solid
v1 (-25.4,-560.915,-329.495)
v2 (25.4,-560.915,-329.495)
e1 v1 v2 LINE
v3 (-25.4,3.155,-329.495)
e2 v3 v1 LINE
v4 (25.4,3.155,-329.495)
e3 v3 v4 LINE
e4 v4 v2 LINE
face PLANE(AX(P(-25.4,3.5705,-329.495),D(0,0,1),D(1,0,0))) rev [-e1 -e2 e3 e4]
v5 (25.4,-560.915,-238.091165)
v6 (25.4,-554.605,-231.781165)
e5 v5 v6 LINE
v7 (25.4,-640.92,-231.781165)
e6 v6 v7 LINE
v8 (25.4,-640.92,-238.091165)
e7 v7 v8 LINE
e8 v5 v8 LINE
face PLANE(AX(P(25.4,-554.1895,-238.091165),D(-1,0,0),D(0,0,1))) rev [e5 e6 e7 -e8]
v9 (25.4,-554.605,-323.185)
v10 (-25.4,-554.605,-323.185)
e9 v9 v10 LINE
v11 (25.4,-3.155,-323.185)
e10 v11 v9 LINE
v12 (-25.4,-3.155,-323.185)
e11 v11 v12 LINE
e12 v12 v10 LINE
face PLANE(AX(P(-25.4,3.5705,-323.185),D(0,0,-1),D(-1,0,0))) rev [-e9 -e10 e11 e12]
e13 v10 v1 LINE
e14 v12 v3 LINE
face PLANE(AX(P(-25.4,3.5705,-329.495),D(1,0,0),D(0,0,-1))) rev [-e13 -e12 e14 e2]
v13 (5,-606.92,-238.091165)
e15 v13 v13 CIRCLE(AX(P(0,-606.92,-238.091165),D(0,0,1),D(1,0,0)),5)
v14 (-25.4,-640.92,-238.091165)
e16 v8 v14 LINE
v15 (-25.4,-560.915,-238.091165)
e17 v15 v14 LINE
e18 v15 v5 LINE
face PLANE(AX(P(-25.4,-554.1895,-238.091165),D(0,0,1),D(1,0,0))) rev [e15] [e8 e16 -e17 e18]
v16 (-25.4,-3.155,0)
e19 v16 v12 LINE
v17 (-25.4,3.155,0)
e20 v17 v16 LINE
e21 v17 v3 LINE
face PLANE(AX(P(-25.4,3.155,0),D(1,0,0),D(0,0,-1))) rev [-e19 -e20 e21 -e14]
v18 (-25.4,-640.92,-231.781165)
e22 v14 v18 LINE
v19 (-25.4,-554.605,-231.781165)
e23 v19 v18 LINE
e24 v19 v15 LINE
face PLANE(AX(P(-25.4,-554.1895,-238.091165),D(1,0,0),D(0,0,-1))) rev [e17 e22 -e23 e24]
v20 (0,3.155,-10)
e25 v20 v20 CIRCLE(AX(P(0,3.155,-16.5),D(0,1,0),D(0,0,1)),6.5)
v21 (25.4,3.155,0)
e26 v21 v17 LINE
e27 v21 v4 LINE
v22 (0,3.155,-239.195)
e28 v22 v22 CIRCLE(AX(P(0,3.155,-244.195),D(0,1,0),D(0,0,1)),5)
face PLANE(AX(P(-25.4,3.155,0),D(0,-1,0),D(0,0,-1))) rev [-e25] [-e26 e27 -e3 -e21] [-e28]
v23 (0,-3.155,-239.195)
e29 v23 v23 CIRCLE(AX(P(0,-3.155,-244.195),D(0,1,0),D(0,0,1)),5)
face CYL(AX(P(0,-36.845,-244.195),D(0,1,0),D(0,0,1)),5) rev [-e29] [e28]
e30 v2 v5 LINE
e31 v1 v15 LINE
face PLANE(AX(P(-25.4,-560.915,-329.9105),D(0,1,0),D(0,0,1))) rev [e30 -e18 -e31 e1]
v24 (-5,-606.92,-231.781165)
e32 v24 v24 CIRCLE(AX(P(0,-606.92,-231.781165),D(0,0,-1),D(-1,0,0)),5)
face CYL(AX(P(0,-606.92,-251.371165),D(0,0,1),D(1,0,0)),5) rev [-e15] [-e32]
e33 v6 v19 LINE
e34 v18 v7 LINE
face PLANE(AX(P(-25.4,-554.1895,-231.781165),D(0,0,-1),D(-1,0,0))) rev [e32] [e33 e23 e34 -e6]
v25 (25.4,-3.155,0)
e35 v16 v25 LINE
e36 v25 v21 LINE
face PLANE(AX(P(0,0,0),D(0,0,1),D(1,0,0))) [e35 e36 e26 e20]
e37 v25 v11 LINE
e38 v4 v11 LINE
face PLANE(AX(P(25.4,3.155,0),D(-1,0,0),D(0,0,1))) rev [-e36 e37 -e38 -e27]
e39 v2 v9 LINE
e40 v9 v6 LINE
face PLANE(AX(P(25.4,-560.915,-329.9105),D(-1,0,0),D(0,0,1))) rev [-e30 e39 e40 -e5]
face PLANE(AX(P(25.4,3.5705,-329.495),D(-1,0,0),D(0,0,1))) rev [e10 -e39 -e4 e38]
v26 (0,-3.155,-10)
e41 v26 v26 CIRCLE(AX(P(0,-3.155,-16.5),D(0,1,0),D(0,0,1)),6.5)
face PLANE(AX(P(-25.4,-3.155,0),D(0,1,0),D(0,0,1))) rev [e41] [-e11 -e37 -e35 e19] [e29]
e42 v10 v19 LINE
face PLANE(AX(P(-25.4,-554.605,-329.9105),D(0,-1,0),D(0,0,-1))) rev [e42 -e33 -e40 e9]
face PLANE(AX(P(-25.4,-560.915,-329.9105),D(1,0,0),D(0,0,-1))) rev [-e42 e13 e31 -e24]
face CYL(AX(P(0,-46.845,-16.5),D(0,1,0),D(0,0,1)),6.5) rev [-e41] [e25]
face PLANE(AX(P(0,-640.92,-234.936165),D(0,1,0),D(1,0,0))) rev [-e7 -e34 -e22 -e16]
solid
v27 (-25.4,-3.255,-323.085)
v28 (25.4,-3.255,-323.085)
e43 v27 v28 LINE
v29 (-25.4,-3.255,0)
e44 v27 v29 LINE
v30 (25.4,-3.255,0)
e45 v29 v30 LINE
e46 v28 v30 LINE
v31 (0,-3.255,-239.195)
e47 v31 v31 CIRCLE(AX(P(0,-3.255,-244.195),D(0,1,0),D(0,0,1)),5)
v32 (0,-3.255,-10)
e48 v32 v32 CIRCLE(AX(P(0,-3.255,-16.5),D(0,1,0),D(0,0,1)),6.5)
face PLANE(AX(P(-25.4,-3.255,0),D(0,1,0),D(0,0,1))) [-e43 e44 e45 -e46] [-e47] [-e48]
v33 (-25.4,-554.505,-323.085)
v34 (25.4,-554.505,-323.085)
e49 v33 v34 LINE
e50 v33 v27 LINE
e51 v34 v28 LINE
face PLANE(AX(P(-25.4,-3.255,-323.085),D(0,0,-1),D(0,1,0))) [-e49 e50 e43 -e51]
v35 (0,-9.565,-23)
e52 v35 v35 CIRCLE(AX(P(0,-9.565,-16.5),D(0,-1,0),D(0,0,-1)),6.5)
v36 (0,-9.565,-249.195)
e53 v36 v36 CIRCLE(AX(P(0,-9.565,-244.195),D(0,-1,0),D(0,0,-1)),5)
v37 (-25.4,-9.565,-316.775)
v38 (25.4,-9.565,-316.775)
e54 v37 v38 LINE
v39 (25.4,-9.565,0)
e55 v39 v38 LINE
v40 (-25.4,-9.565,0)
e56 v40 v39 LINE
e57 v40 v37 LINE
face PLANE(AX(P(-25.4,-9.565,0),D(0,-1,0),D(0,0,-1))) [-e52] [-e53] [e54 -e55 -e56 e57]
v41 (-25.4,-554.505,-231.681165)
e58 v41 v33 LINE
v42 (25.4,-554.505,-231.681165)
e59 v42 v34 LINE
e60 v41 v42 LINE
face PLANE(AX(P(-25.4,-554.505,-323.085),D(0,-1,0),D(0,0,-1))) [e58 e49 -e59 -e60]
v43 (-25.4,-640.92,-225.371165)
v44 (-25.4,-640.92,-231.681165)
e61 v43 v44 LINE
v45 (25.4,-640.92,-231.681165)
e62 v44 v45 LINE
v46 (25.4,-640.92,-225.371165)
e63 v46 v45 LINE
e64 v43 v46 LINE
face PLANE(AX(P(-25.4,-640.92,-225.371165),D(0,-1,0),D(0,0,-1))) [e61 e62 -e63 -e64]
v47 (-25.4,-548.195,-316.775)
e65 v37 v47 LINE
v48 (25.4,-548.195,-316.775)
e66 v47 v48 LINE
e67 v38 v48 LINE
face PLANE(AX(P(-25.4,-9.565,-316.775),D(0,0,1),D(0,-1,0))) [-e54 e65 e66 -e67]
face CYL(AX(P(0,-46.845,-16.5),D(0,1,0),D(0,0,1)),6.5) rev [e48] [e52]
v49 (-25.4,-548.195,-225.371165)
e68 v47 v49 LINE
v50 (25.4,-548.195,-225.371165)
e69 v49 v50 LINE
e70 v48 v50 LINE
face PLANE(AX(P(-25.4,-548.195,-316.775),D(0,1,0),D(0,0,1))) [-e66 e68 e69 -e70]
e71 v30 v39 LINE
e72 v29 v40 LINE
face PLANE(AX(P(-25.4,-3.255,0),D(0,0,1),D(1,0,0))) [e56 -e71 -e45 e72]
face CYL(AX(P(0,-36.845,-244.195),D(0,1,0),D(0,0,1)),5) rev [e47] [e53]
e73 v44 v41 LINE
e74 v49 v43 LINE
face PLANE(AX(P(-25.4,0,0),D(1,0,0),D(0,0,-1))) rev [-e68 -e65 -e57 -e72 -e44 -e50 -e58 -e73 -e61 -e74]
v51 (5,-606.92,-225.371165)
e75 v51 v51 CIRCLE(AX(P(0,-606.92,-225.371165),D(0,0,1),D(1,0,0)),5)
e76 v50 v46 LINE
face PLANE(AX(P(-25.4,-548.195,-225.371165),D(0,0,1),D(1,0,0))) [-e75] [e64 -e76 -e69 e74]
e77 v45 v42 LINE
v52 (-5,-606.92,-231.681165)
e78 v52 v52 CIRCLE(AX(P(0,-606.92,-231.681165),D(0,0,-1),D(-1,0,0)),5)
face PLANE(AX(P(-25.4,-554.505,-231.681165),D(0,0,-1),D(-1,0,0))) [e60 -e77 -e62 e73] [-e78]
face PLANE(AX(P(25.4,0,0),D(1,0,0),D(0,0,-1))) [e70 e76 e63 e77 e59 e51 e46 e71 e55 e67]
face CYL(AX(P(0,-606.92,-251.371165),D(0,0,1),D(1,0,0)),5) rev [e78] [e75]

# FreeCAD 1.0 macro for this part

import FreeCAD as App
import Part
import Sketcher

V = App.Vector


def add_polygon(sketch, points):
    """Adds a closed chain of lines whose ends are joined by coincident constraints."""
    first, n = sketch.GeometryCount, len(points)
    for a, b in zip(points, points[1:] + points[:1]):
        sketch.addGeometry(Part.LineSegment(App.Vector(*a, 0), App.Vector(*b, 0)), False)
    for i in range(n):
        sketch.addConstraint(Sketcher.Constraint("Coincident", first + i, 2, first + (i + 1) % n, 1))

doc = App.newDocument("Part")
body = doc.addObject("PartDesign::Body", "Body")

sketch1 = doc.addObject("Sketcher::SketchObject", "Sketch")
body.addObject(sketch1)
sketch1.AttachmentSupport = (doc.XY_Plane, [""])
sketch1.MapMode = "FlatFace"
add_polygon(sketch1, [(-25.4, 3.155), (-25.4, -3.155), (25.4, -3.155), (25.4, 3.155)])
sketch1.addConstraint([
    Sketcher.Constraint("Vertical", 0),
    Sketcher.Constraint("Horizontal", 1),
    Sketcher.Constraint("Vertical", 2),
    Sketcher.Constraint("Horizontal", 3),
    Sketcher.Constraint("Symmetric", 0, 2, 2, 2, -1, 1),
    Sketcher.Constraint("DistanceX", 1, 1, 1, 2, 50.8),
    Sketcher.Constraint("DistanceY", 0, 2, 0, 1, 6.31),
])

sketch2 = doc.addObject("Sketcher::SketchObject", "Sketch001")
body.addObject(sketch2)
sketch2.AttachmentSupport = (doc.YZ_Plane, [""])
sketch2.MapMode = "FlatFace"
sketch2.addGeometry([
    Part.LineSegment(V(0, 0, 0), V(0, -326.34, 0)),
    Part.LineSegment(V(0, -326.34, 0), V(-557.76, -326.34, 0)),
    Part.LineSegment(V(-557.76, -326.34, 0), V(-557.76, -234.936165, 0)),
    Part.LineSegment(V(-557.76, -234.936165, 0), V(-640.92, -234.936165, 0)),
], False)
sketch2.addConstraint([
    Sketcher.Constraint("Coincident", 0, 2, 1, 1),
    Sketcher.Constraint("Coincident", 1, 2, 2, 1),
    Sketcher.Constraint("Coincident", 2, 2, 3, 1),
    Sketcher.Constraint("Vertical", 0),
    Sketcher.Constraint("Horizontal", 1),
    Sketcher.Constraint("Vertical", 2),
    Sketcher.Constraint("Horizontal", 3),
    Sketcher.Constraint("Coincident", 0, 1, -1, 1),
    Sketcher.Constraint("DistanceX", 1, 2, 1, 1, 557.76),
    Sketcher.Constraint("DistanceX", 3, 2, 3, 1, 83.16),
    Sketcher.Constraint("DistanceY", 0, 2, 0, 1, 326.34),
    Sketcher.Constraint("DistanceY", 2, 1, 2, 2, 91.403835),
])
doc.recompute()

additivepipe = doc.addObject("PartDesign::AdditivePipe", "AdditivePipe")
body.addObject(additivepipe)
additivepipe.Profile = sketch1
additivepipe.Spine = (sketch2, ["Edge1", "Edge2", "Edge3", "Edge4"])
additivepipe.Transition = "Right corner"
body2 = doc.addObject("PartDesign::Body", "Body001")

sketch3 = doc.addObject("Sketcher::SketchObject", "Sketch002")
body2.addObject(sketch3)
sketch3.AttachmentSupport = (doc.getObject("YZ_Plane001"), [""])
sketch3.MapMode = "FlatFace"
sketch3.AttachmentOffset = App.Placement(V(0, 0, 25.4), App.Rotation())
add_polygon(sketch3, [(-3.255, -323.085), (-3.255, 0), (-9.565, 0), (-9.565, -316.775), (-548.195, -316.775), (-548.195, -225.371165), (-640.92, -225.371165), (-640.92, -231.681165), (-554.505, -231.681165), (-554.505, -323.085)])
sketch3.addConstraint([
    Sketcher.Constraint("Vertical", 0),
    Sketcher.Constraint("Horizontal", 1),
    Sketcher.Constraint("Vertical", 2),
    Sketcher.Constraint("Horizontal", 3),
    Sketcher.Constraint("Vertical", 4),
    Sketcher.Constraint("Horizontal", 5),
    Sketcher.Constraint("Vertical", 6),
    Sketcher.Constraint("Horizontal", 7),
    Sketcher.Constraint("Vertical", 8),
    Sketcher.Constraint("Horizontal", 9),
    Sketcher.Constraint("PointOnObject", 0, 2, -1),
    Sketcher.Constraint("Equal", 1, 6),
    Sketcher.Constraint("Equal", 4, 8),
    Sketcher.Constraint("DistanceX", 1, 2, 1, 1, 6.31),
    Sketcher.Constraint("DistanceX", 3, 2, 3, 1, 538.63),
    Sketcher.Constraint("DistanceX", 9, 1, 9, 2, 551.25),
    Sketcher.Constraint("DistanceX", 5, 2, 5, 1, 92.725),
    Sketcher.Constraint("DistanceY", 0, 1, 0, 2, 323.085),
    Sketcher.Constraint("DistanceX", 5, 2, -1, 1, 640.92),
    Sketcher.Constraint("DistanceY", 4, 1, 4, 2, 91.403835),
])
pad1 = doc.addObject("PartDesign::Pad", "Pad")
body2.addObject(pad1)
pad1.Profile = sketch3
pad1.Length = 50.8
pad1.Reversed = True
body3 = doc.addObject("PartDesign::Body", "Body002")

sketch4 = doc.addObject("Sketcher::SketchObject", "Sketch003")
body3.addObject(sketch4)
sketch4.AttachmentSupport = (doc.getObject("XZ_Plane002"), [""])
sketch4.MapMode = "FlatFace"
sketch4.AttachmentOffset = App.Placement(V(0, 0, -3.155), App.Rotation())
sketch4.addGeometry(Part.Circle(V(0, -244.195, 0), V(0, 0, 1), 5), False)
sketch4.addConstraint([
    Sketcher.Constraint("PointOnObject", 0, 3, -2),
    Sketcher.Constraint("Diameter", 0, 10.0),
    Sketcher.Constraint("DistanceY", 0, 3, -1, 1, 244.195),
])
pad2 = doc.addObject("PartDesign::Pad", "Pad001")
body3.addObject(pad2)
pad2.Profile = sketch4
pad2.Length = 40
doc.recompute()

body4 = doc.addObject("PartDesign::Body", "Body003")
body4.BaseFeature = body3
boolean = doc.addObject("PartDesign::Boolean", "Boolean")
body.addObject(boolean)
boolean.Type = "Cut"
boolean.addObjects([body4])
doc.recompute()

boolean2 = doc.addObject("PartDesign::Boolean", "Boolean001")
body2.addObject(boolean2)
boolean2.Type = "Cut"
boolean2.addObjects([body3])
body5 = doc.addObject("PartDesign::Body", "Body004")

sketch5 = doc.addObject("Sketcher::SketchObject", "Sketch004")
body5.addObject(sketch5)
sketch5.AttachmentSupport = (doc.getObject("XZ_Plane004"), [""])
sketch5.MapMode = "FlatFace"
sketch5.AttachmentOffset = App.Placement(V(0, 0, -3.155), App.Rotation())
sketch5.addGeometry(Part.Circle(V(0, -16.5, 0), V(0, 0, 1), 6.5), False)
sketch5.addConstraint([
    Sketcher.Constraint("PointOnObject", 0, 3, -2),
    Sketcher.Constraint("Diameter", 0, 13.0),
    Sketcher.Constraint("DistanceY", 0, 3, -1, 1, 16.5),
])
pad3 = doc.addObject("PartDesign::Pad", "Pad002")
body5.addObject(pad3)
pad3.Profile = sketch5
pad3.Length = 50
doc.recompute()

body6 = doc.addObject("PartDesign::Body", "Body005")
body6.BaseFeature = body5
boolean3 = doc.addObject("PartDesign::Boolean", "Boolean002")
body.addObject(boolean3)
boolean3.Type = "Cut"
boolean3.addObjects([body6])
doc.recompute()

boolean4 = doc.addObject("PartDesign::Boolean", "Boolean003")
body2.addObject(boolean4)
boolean4.Type = "Cut"
boolean4.addObjects([body5])
body7 = doc.addObject("PartDesign::Body", "Body006")

sketch6 = doc.addObject("Sketcher::SketchObject", "Sketch005")
body7.addObject(sketch6)
sketch6.AttachmentSupport = (doc.getObject("XY_Plane006"), [""])
sketch6.MapMode = "FlatFace"
sketch6.AttachmentOffset = App.Placement(V(0, 0, -225.371165), App.Rotation())
sketch6.addGeometry(Part.Circle(V(0, -606.92, 0), V(0, 0, 1), 5), False)
sketch6.addConstraint([
    Sketcher.Constraint("PointOnObject", 0, 3, -2),
    Sketcher.Constraint("Diameter", 0, 10.0),
    Sketcher.Constraint("DistanceY", 0, 3, -1, 1, 606.92),
])
pad4 = doc.addObject("PartDesign::Pad", "Pad003")
body7.addObject(pad4)
pad4.Profile = sketch6
pad4.Length = 26
pad4.Reversed = True
doc.recompute()

body8 = doc.addObject("PartDesign::Body", "Body007")
body8.BaseFeature = body7
boolean5 = doc.addObject("PartDesign::Boolean", "Boolean004")
body.addObject(boolean5)
boolean5.Type = "Cut"
boolean5.addObjects([body8])
doc.recompute()

boolean6 = doc.addObject("PartDesign::Boolean", "Boolean005")
body2.addObject(boolean6)
boolean6.Type = "Cut"
boolean6.addObjects([body7])

doc.recompute()
